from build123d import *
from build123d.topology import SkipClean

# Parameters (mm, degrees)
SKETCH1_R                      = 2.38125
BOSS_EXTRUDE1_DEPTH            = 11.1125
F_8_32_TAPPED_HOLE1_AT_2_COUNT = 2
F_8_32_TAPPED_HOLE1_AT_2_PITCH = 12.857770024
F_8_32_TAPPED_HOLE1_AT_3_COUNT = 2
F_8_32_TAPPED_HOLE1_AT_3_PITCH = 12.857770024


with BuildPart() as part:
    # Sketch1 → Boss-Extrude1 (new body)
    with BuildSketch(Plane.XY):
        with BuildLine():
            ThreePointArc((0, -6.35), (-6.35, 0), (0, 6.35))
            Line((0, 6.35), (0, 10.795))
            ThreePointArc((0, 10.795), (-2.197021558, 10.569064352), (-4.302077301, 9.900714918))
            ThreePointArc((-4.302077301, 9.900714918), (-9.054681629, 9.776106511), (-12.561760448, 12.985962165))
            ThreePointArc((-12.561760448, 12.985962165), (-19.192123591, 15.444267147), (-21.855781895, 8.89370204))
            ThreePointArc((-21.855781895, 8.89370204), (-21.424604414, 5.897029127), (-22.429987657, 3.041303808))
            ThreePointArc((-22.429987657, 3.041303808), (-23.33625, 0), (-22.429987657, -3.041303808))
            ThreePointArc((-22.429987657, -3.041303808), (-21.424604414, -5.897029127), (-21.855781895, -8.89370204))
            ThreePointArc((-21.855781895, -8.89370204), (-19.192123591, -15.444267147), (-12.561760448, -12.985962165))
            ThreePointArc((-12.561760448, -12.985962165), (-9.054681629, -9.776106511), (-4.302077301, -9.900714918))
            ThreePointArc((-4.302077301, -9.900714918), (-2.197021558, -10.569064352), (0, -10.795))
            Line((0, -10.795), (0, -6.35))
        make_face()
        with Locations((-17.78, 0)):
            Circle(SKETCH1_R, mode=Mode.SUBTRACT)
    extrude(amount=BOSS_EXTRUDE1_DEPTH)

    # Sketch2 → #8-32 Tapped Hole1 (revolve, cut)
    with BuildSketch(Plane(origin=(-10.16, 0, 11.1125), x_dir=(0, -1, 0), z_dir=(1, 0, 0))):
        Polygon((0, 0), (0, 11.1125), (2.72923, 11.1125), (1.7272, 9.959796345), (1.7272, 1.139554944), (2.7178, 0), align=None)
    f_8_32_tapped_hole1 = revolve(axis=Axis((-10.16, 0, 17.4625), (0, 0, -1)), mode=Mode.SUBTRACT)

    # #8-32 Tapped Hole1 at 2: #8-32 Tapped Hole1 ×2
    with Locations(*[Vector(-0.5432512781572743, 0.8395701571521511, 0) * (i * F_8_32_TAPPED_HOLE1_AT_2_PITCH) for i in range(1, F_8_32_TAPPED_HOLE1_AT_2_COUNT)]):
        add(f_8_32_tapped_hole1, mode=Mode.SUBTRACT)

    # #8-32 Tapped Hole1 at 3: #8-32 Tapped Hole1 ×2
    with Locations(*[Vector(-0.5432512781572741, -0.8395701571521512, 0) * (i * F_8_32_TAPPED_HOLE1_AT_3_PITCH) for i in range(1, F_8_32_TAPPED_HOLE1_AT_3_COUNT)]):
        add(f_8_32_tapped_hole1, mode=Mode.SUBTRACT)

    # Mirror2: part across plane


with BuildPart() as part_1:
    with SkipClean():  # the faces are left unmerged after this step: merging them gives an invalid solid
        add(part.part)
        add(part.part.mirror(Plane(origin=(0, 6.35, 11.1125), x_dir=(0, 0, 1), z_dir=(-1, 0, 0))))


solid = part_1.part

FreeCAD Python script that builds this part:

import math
import FreeCAD as App
import Part
import Sketcher

V = App.Vector
Q = App.Units.Quantity


def add_polygon(sketch, points):
    """Adds a closed chain of lines whose ends are joined by coincident constraints."""
    first, n = sketch.GeometryCount, len(points)
    for a, b in zip(points, points[1:] + points[:1]):
        sketch.addGeometry(Part.LineSegment(App.Vector(*a, 0), App.Vector(*b, 0)), False)
    for i in range(n):
        sketch.addConstraint(Sketcher.Constraint("Coincident", first + i, 2, first + (i + 1) % n, 1))

doc = App.newDocument("Part")
params = doc.addObject("Spreadsheet::Sheet", "Params")
for row, (alias, value) in enumerate([
    ("sketch1_radius", "0.2 in"),
    ("sketch1_radius2", "0.25 in"),
    ("sketch1_diameter", "0.1875 in"),
    ("sketch1_radius3", "0.425 in"),
    ("sketch1_radius4", "0.21875 in"),
    ("pad1_length", "0.4375 in"),
    ("sketch2_width", "0.107 in"),
    ("sketch2_height", "0.4375 in"),
    ("groove_angle", "360 deg"),
    ("linearpattern_pitch", "12.85777 mm"),
    ("linearpattern2_pitch", "12.85777 mm"),
], start=1):
    params.set(f"A{row}", alias)
    params.set(f"B{row}", "=" + value)
    params.setAlias(f"B{row}", alias)

body = doc.addObject("PartDesign::Body", "Body")

sketch1 = body.newObject("Sketcher::SketchObject", "Sketch")
sketch1.AttachmentSupport = (doc.getObject("XY_Plane"), [""])
sketch1.MapMode = "FlatFace"
sketch1.addGeometry(Part.ArcOfCircle(Part.Circle(V(0, 0, 0), V(0, 0, 1), 6.3), math.radians(90), math.radians(270)), False)
sketch1.addGeometry(Part.LineSegment(V(0, 6.3, 0), V(0, 10.8, 0)), False)
sketch1.addGeometry(Part.ArcOfCircle(Part.Circle(V(0, 0, 0), V(0, 0, 1), 10.8), math.radians(90), math.radians(113)), False)
sketch1.addGeometry(Part.ArcOfCircle(Part.Circle(V(-6.8, 15.7, 0), V(0, 0, 1), 6.4), math.radians(-154), math.radians(-67)), False)
sketch1.addGeometry(Part.ArcOfCircle(Part.Circle(V(-17.1, 10.8, 0), V(0, 0, 1), 5.1), math.radians(26), math.radians(202)), False)
sketch1.addGeometry(Part.ArcOfCircle(Part.Circle(V(-27.7, 6.5, 0), V(0, 0, 1), 6.3), math.radians(-33), math.radians(22)), False)
sketch1.addGeometry(Part.ArcOfCircle(Part.Circle(V(-17.8, 0, 0), V(0, 0, 1), 5.6), math.radians(147), math.radians(213)), False)
sketch1.addGeometry(Part.ArcOfCircle(Part.Circle(V(-27.7, -6.5, 0), V(0, 0, 1), 6.3), math.radians(-22), math.radians(33)), False)
sketch1.addGeometry(Part.ArcOfCircle(Part.Circle(V(-17.1, -10.8, 0), V(0, 0, 1), 5.1), math.radians(158), math.radians(334)), False)
sketch1.addGeometry(Part.ArcOfCircle(Part.Circle(V(-6.8, -15.7, 0), V(0, 0, 1), 6.4), math.radians(67), math.radians(154)), False)
sketch1.addGeometry(Part.ArcOfCircle(Part.Circle(V(0, 0, 0), V(0, 0, 1), 10.8), math.radians(-113), math.radians(-90)), False)
sketch1.addGeometry(Part.LineSegment(V(0, -10.8, 0), V(0, -6.3, 0)), False)
sketch1.addGeometry(Part.Circle(V(-17.8, 0, 0), V(0, 0, 1), 2.4), False)
sketch1.addConstraint(Sketcher.Constraint("Coincident", 0, 1, 1, 1))
sketch1.addConstraint(Sketcher.Constraint("Coincident", 1, 2, 2, 1))
sketch1.addConstraint(Sketcher.Constraint("Tangent", 2, 2, 3, 2))
sketch1.addConstraint(Sketcher.Constraint("Tangent", 3, 1, 4, 1))
sketch1.addConstraint(Sketcher.Constraint("Tangent", 4, 2, 5, 2))
sketch1.addConstraint(Sketcher.Constraint("Tangent", 5, 1, 6, 1))
sketch1.addConstraint(Sketcher.Constraint("Tangent", 6, 2, 7, 2))
sketch1.addConstraint(Sketcher.Constraint("Tangent", 7, 1, 8, 1))
sketch1.addConstraint(Sketcher.Constraint("Tangent", 8, 2, 9, 2))
sketch1.addConstraint(Sketcher.Constraint("Tangent", 9, 1, 10, 1))
sketch1.addConstraint(Sketcher.Constraint("Coincident", 10, 2, 11, 1))
sketch1.addConstraint(Sketcher.Constraint("Coincident", 11, 2, 0, 2))
sketch1.addConstraint(Sketcher.Constraint("Vertical", 1))
sketch1.addConstraint(Sketcher.Constraint("Vertical", 11))
sketch1.addConstraint(Sketcher.Constraint("Coincident", 0, 3, -1, 1))
sketch1.addConstraint(Sketcher.Constraint("Coincident", 2, 3, -1, 1))
sketch1.addConstraint(Sketcher.Constraint("Coincident", 10, 3, -1, 1))
sketch1.addConstraint(Sketcher.Constraint("Coincident", 12, 3, 6, 3))
sketch1.addConstraint(Sketcher.Constraint("Equal", 0, 3))
sketch1.addConstraint(Sketcher.Constraint("Equal", 3, 5))
sketch1.addConstraint(Sketcher.Constraint("Equal", 5, 7))
sketch1.addConstraint(Sketcher.Constraint("Equal", 4, 8))
sketch1.addConstraint(Sketcher.Constraint("Equal", 7, 9))
sketch1.addConstraint(Sketcher.Constraint("Equal", 2, 10))
sketch1.addConstraint(Sketcher.Constraint("Symmetric", 5, 3, 7, 3, -1))
sketch1.addConstraint(Sketcher.Constraint("PointOnObject", 0, 1, -2))
sketch1.addConstraint(Sketcher.Constraint("PointOnObject", 10, 2, -2))
sketch1.addConstraint(Sketcher.Constraint("Horizontal", 4, 3, 1, 2))
sketch1.addConstraint(Sketcher.Constraint("Horizontal", 8, 3, 10, 2))
sketch1.addConstraint(Sketcher.Constraint("Radius", 4, Q("0.2 in")))
sketch1.addConstraint(Sketcher.Constraint("Radius", 0, Q("0.25 in")))
sketch1.addConstraint(Sketcher.Constraint("Diameter", 12, Q("0.1875 in")))
sketch1.addConstraint(Sketcher.Constraint("Radius", 2, Q("0.425 in")))
sketch1.addConstraint(Sketcher.Constraint("Radius", 6, Q("0.21875 in")))
sketch1.addConstraint(Sketcher.Constraint("DistanceX", 6, 3, -1, 1, Q("0.7 in")))
sketch1.addConstraint(Sketcher.Constraint("DistanceX", 4, 3, -1, 1, Q("0.675 in")))
sketch1.setExpression("Constraints[29]", "Params.sketch1_radius")
sketch1.setExpression("Constraints[30]", "Params.sketch1_radius2")
sketch1.setExpression("Constraints[31]", "Params.sketch1_diameter")
sketch1.setExpression("Constraints[32]", "Params.sketch1_radius3")
sketch1.setExpression("Constraints[33]", "Params.sketch1_radius4")
pad1 = body.newObject("PartDesign::Pad", "Pad")
pad1.Profile = sketch1
pad1.setExpression("Length", "Params.pad1_length")

sketch2 = body.newObject("Sketcher::SketchObject", "Sketch001")
sketch2.AttachmentSupport = (doc.getObject("YZ_Plane"), [""])
sketch2.MapMode = "FlatFace"
sketch2.AttachmentOffset = App.Placement(V(0, 0, -0.4 * 25.4), App.Rotation())
add_polygon(sketch2, [(0, 0), (0, 11.1), (-2.7, 11.1), (-1.7, 10), (-1.7, 1.2), (-2.7, 0)])
sketch2.addConstraint(Sketcher.Constraint("Vertical", 0))
sketch2.addConstraint(Sketcher.Constraint("Horizontal", 1))
sketch2.addConstraint(Sketcher.Constraint("Vertical", 3))
sketch2.addConstraint(Sketcher.Constraint("Horizontal", 5))
sketch2.addConstraint(Sketcher.Constraint("Coincident", 5, 2, -1, 1))
sketch2.addConstraint(Sketcher.Constraint("Angle", 2, Q("-49 deg")))
sketch2.addConstraint(Sketcher.Constraint("Angle", 4, Q("-131 deg")))
sketch2.addConstraint(Sketcher.Constraint("DistanceX", 1, 2, 1, 1, Q("0.107 in")))
sketch2.addConstraint(Sketcher.Constraint("DistanceY", 0, 1, 0, 2, Q("0.4375 in")))
sketch2.addConstraint(Sketcher.Constraint("DistanceX", 2, 2, -1, 1, Q("0.068 in")))
sketch2.addConstraint(Sketcher.Constraint("DistanceX", 5, 1, 5, 2, 2.72923))
sketch2.setExpression("Constraints[13]", "Params.sketch2_width")
sketch2.setExpression("Constraints[14]", "Params.sketch2_height")
groove = body.newObject("PartDesign::Groove", "Groove")
groove.Profile = sketch2
groove.ReferenceAxis = (sketch2, ["V_Axis"])
groove.setExpression("Angle", "Params.groove_angle")
doc.recompute()

datumline = body.newObject("PartDesign::Line", "DatumLine")
datumline.Placement = App.Placement(V(0, 0, 0), App.Rotation(V(0, 0, 1), V(-0.543251278, 0.839570157, 0)))
linearpattern = body.newObject("PartDesign::LinearPattern", "LinearPattern")
linearpattern.Originals = [groove]
linearpattern.Direction = (datumline, [""])
linearpattern.Mode = "offset"
linearpattern.setExpression("Offset", "Params.linearpattern_pitch")
linearpattern.Occurrences = 2
body.Tip = linearpattern
doc.recompute()

datumline2 = body.newObject("PartDesign::Line", "DatumLine001")
datumline2.Placement = App.Placement(V(0, 0, 0), App.Rotation(V(0, 0, 1), V(-0.543251278, -0.839570157, 0)))
linearpattern2 = body.newObject("PartDesign::LinearPattern", "LinearPattern001")
linearpattern2.Originals = [groove]
linearpattern2.Direction = (datumline2, [""])
linearpattern2.Mode = "offset"
linearpattern2.setExpression("Offset", "Params.linearpattern2_pitch")
linearpattern2.Occurrences = 2
body.Tip = linearpattern2
body2 = doc.addObject("PartDesign::Body", "Body001")
doc.recompute()

body2.BaseFeature = body
doc.recompute()

mirroring = doc.addObject("Part::Mirroring", "Mirroring")
mirroring.Source = body
mirroring.Base = V(0, 6.35, 11.1125)
mirroring.Normal = V(-1, 0, 0)
body3 = doc.addObject("PartDesign::Body", "Body002")
body3.BaseFeature = mirroring
boolean = body2.newObject("PartDesign::Boolean", "Boolean")
boolean.Type = "Fuse"
boolean.addObjects([body3])
doc.recompute()
mirroring.Visibility = False

doc.recompute()
